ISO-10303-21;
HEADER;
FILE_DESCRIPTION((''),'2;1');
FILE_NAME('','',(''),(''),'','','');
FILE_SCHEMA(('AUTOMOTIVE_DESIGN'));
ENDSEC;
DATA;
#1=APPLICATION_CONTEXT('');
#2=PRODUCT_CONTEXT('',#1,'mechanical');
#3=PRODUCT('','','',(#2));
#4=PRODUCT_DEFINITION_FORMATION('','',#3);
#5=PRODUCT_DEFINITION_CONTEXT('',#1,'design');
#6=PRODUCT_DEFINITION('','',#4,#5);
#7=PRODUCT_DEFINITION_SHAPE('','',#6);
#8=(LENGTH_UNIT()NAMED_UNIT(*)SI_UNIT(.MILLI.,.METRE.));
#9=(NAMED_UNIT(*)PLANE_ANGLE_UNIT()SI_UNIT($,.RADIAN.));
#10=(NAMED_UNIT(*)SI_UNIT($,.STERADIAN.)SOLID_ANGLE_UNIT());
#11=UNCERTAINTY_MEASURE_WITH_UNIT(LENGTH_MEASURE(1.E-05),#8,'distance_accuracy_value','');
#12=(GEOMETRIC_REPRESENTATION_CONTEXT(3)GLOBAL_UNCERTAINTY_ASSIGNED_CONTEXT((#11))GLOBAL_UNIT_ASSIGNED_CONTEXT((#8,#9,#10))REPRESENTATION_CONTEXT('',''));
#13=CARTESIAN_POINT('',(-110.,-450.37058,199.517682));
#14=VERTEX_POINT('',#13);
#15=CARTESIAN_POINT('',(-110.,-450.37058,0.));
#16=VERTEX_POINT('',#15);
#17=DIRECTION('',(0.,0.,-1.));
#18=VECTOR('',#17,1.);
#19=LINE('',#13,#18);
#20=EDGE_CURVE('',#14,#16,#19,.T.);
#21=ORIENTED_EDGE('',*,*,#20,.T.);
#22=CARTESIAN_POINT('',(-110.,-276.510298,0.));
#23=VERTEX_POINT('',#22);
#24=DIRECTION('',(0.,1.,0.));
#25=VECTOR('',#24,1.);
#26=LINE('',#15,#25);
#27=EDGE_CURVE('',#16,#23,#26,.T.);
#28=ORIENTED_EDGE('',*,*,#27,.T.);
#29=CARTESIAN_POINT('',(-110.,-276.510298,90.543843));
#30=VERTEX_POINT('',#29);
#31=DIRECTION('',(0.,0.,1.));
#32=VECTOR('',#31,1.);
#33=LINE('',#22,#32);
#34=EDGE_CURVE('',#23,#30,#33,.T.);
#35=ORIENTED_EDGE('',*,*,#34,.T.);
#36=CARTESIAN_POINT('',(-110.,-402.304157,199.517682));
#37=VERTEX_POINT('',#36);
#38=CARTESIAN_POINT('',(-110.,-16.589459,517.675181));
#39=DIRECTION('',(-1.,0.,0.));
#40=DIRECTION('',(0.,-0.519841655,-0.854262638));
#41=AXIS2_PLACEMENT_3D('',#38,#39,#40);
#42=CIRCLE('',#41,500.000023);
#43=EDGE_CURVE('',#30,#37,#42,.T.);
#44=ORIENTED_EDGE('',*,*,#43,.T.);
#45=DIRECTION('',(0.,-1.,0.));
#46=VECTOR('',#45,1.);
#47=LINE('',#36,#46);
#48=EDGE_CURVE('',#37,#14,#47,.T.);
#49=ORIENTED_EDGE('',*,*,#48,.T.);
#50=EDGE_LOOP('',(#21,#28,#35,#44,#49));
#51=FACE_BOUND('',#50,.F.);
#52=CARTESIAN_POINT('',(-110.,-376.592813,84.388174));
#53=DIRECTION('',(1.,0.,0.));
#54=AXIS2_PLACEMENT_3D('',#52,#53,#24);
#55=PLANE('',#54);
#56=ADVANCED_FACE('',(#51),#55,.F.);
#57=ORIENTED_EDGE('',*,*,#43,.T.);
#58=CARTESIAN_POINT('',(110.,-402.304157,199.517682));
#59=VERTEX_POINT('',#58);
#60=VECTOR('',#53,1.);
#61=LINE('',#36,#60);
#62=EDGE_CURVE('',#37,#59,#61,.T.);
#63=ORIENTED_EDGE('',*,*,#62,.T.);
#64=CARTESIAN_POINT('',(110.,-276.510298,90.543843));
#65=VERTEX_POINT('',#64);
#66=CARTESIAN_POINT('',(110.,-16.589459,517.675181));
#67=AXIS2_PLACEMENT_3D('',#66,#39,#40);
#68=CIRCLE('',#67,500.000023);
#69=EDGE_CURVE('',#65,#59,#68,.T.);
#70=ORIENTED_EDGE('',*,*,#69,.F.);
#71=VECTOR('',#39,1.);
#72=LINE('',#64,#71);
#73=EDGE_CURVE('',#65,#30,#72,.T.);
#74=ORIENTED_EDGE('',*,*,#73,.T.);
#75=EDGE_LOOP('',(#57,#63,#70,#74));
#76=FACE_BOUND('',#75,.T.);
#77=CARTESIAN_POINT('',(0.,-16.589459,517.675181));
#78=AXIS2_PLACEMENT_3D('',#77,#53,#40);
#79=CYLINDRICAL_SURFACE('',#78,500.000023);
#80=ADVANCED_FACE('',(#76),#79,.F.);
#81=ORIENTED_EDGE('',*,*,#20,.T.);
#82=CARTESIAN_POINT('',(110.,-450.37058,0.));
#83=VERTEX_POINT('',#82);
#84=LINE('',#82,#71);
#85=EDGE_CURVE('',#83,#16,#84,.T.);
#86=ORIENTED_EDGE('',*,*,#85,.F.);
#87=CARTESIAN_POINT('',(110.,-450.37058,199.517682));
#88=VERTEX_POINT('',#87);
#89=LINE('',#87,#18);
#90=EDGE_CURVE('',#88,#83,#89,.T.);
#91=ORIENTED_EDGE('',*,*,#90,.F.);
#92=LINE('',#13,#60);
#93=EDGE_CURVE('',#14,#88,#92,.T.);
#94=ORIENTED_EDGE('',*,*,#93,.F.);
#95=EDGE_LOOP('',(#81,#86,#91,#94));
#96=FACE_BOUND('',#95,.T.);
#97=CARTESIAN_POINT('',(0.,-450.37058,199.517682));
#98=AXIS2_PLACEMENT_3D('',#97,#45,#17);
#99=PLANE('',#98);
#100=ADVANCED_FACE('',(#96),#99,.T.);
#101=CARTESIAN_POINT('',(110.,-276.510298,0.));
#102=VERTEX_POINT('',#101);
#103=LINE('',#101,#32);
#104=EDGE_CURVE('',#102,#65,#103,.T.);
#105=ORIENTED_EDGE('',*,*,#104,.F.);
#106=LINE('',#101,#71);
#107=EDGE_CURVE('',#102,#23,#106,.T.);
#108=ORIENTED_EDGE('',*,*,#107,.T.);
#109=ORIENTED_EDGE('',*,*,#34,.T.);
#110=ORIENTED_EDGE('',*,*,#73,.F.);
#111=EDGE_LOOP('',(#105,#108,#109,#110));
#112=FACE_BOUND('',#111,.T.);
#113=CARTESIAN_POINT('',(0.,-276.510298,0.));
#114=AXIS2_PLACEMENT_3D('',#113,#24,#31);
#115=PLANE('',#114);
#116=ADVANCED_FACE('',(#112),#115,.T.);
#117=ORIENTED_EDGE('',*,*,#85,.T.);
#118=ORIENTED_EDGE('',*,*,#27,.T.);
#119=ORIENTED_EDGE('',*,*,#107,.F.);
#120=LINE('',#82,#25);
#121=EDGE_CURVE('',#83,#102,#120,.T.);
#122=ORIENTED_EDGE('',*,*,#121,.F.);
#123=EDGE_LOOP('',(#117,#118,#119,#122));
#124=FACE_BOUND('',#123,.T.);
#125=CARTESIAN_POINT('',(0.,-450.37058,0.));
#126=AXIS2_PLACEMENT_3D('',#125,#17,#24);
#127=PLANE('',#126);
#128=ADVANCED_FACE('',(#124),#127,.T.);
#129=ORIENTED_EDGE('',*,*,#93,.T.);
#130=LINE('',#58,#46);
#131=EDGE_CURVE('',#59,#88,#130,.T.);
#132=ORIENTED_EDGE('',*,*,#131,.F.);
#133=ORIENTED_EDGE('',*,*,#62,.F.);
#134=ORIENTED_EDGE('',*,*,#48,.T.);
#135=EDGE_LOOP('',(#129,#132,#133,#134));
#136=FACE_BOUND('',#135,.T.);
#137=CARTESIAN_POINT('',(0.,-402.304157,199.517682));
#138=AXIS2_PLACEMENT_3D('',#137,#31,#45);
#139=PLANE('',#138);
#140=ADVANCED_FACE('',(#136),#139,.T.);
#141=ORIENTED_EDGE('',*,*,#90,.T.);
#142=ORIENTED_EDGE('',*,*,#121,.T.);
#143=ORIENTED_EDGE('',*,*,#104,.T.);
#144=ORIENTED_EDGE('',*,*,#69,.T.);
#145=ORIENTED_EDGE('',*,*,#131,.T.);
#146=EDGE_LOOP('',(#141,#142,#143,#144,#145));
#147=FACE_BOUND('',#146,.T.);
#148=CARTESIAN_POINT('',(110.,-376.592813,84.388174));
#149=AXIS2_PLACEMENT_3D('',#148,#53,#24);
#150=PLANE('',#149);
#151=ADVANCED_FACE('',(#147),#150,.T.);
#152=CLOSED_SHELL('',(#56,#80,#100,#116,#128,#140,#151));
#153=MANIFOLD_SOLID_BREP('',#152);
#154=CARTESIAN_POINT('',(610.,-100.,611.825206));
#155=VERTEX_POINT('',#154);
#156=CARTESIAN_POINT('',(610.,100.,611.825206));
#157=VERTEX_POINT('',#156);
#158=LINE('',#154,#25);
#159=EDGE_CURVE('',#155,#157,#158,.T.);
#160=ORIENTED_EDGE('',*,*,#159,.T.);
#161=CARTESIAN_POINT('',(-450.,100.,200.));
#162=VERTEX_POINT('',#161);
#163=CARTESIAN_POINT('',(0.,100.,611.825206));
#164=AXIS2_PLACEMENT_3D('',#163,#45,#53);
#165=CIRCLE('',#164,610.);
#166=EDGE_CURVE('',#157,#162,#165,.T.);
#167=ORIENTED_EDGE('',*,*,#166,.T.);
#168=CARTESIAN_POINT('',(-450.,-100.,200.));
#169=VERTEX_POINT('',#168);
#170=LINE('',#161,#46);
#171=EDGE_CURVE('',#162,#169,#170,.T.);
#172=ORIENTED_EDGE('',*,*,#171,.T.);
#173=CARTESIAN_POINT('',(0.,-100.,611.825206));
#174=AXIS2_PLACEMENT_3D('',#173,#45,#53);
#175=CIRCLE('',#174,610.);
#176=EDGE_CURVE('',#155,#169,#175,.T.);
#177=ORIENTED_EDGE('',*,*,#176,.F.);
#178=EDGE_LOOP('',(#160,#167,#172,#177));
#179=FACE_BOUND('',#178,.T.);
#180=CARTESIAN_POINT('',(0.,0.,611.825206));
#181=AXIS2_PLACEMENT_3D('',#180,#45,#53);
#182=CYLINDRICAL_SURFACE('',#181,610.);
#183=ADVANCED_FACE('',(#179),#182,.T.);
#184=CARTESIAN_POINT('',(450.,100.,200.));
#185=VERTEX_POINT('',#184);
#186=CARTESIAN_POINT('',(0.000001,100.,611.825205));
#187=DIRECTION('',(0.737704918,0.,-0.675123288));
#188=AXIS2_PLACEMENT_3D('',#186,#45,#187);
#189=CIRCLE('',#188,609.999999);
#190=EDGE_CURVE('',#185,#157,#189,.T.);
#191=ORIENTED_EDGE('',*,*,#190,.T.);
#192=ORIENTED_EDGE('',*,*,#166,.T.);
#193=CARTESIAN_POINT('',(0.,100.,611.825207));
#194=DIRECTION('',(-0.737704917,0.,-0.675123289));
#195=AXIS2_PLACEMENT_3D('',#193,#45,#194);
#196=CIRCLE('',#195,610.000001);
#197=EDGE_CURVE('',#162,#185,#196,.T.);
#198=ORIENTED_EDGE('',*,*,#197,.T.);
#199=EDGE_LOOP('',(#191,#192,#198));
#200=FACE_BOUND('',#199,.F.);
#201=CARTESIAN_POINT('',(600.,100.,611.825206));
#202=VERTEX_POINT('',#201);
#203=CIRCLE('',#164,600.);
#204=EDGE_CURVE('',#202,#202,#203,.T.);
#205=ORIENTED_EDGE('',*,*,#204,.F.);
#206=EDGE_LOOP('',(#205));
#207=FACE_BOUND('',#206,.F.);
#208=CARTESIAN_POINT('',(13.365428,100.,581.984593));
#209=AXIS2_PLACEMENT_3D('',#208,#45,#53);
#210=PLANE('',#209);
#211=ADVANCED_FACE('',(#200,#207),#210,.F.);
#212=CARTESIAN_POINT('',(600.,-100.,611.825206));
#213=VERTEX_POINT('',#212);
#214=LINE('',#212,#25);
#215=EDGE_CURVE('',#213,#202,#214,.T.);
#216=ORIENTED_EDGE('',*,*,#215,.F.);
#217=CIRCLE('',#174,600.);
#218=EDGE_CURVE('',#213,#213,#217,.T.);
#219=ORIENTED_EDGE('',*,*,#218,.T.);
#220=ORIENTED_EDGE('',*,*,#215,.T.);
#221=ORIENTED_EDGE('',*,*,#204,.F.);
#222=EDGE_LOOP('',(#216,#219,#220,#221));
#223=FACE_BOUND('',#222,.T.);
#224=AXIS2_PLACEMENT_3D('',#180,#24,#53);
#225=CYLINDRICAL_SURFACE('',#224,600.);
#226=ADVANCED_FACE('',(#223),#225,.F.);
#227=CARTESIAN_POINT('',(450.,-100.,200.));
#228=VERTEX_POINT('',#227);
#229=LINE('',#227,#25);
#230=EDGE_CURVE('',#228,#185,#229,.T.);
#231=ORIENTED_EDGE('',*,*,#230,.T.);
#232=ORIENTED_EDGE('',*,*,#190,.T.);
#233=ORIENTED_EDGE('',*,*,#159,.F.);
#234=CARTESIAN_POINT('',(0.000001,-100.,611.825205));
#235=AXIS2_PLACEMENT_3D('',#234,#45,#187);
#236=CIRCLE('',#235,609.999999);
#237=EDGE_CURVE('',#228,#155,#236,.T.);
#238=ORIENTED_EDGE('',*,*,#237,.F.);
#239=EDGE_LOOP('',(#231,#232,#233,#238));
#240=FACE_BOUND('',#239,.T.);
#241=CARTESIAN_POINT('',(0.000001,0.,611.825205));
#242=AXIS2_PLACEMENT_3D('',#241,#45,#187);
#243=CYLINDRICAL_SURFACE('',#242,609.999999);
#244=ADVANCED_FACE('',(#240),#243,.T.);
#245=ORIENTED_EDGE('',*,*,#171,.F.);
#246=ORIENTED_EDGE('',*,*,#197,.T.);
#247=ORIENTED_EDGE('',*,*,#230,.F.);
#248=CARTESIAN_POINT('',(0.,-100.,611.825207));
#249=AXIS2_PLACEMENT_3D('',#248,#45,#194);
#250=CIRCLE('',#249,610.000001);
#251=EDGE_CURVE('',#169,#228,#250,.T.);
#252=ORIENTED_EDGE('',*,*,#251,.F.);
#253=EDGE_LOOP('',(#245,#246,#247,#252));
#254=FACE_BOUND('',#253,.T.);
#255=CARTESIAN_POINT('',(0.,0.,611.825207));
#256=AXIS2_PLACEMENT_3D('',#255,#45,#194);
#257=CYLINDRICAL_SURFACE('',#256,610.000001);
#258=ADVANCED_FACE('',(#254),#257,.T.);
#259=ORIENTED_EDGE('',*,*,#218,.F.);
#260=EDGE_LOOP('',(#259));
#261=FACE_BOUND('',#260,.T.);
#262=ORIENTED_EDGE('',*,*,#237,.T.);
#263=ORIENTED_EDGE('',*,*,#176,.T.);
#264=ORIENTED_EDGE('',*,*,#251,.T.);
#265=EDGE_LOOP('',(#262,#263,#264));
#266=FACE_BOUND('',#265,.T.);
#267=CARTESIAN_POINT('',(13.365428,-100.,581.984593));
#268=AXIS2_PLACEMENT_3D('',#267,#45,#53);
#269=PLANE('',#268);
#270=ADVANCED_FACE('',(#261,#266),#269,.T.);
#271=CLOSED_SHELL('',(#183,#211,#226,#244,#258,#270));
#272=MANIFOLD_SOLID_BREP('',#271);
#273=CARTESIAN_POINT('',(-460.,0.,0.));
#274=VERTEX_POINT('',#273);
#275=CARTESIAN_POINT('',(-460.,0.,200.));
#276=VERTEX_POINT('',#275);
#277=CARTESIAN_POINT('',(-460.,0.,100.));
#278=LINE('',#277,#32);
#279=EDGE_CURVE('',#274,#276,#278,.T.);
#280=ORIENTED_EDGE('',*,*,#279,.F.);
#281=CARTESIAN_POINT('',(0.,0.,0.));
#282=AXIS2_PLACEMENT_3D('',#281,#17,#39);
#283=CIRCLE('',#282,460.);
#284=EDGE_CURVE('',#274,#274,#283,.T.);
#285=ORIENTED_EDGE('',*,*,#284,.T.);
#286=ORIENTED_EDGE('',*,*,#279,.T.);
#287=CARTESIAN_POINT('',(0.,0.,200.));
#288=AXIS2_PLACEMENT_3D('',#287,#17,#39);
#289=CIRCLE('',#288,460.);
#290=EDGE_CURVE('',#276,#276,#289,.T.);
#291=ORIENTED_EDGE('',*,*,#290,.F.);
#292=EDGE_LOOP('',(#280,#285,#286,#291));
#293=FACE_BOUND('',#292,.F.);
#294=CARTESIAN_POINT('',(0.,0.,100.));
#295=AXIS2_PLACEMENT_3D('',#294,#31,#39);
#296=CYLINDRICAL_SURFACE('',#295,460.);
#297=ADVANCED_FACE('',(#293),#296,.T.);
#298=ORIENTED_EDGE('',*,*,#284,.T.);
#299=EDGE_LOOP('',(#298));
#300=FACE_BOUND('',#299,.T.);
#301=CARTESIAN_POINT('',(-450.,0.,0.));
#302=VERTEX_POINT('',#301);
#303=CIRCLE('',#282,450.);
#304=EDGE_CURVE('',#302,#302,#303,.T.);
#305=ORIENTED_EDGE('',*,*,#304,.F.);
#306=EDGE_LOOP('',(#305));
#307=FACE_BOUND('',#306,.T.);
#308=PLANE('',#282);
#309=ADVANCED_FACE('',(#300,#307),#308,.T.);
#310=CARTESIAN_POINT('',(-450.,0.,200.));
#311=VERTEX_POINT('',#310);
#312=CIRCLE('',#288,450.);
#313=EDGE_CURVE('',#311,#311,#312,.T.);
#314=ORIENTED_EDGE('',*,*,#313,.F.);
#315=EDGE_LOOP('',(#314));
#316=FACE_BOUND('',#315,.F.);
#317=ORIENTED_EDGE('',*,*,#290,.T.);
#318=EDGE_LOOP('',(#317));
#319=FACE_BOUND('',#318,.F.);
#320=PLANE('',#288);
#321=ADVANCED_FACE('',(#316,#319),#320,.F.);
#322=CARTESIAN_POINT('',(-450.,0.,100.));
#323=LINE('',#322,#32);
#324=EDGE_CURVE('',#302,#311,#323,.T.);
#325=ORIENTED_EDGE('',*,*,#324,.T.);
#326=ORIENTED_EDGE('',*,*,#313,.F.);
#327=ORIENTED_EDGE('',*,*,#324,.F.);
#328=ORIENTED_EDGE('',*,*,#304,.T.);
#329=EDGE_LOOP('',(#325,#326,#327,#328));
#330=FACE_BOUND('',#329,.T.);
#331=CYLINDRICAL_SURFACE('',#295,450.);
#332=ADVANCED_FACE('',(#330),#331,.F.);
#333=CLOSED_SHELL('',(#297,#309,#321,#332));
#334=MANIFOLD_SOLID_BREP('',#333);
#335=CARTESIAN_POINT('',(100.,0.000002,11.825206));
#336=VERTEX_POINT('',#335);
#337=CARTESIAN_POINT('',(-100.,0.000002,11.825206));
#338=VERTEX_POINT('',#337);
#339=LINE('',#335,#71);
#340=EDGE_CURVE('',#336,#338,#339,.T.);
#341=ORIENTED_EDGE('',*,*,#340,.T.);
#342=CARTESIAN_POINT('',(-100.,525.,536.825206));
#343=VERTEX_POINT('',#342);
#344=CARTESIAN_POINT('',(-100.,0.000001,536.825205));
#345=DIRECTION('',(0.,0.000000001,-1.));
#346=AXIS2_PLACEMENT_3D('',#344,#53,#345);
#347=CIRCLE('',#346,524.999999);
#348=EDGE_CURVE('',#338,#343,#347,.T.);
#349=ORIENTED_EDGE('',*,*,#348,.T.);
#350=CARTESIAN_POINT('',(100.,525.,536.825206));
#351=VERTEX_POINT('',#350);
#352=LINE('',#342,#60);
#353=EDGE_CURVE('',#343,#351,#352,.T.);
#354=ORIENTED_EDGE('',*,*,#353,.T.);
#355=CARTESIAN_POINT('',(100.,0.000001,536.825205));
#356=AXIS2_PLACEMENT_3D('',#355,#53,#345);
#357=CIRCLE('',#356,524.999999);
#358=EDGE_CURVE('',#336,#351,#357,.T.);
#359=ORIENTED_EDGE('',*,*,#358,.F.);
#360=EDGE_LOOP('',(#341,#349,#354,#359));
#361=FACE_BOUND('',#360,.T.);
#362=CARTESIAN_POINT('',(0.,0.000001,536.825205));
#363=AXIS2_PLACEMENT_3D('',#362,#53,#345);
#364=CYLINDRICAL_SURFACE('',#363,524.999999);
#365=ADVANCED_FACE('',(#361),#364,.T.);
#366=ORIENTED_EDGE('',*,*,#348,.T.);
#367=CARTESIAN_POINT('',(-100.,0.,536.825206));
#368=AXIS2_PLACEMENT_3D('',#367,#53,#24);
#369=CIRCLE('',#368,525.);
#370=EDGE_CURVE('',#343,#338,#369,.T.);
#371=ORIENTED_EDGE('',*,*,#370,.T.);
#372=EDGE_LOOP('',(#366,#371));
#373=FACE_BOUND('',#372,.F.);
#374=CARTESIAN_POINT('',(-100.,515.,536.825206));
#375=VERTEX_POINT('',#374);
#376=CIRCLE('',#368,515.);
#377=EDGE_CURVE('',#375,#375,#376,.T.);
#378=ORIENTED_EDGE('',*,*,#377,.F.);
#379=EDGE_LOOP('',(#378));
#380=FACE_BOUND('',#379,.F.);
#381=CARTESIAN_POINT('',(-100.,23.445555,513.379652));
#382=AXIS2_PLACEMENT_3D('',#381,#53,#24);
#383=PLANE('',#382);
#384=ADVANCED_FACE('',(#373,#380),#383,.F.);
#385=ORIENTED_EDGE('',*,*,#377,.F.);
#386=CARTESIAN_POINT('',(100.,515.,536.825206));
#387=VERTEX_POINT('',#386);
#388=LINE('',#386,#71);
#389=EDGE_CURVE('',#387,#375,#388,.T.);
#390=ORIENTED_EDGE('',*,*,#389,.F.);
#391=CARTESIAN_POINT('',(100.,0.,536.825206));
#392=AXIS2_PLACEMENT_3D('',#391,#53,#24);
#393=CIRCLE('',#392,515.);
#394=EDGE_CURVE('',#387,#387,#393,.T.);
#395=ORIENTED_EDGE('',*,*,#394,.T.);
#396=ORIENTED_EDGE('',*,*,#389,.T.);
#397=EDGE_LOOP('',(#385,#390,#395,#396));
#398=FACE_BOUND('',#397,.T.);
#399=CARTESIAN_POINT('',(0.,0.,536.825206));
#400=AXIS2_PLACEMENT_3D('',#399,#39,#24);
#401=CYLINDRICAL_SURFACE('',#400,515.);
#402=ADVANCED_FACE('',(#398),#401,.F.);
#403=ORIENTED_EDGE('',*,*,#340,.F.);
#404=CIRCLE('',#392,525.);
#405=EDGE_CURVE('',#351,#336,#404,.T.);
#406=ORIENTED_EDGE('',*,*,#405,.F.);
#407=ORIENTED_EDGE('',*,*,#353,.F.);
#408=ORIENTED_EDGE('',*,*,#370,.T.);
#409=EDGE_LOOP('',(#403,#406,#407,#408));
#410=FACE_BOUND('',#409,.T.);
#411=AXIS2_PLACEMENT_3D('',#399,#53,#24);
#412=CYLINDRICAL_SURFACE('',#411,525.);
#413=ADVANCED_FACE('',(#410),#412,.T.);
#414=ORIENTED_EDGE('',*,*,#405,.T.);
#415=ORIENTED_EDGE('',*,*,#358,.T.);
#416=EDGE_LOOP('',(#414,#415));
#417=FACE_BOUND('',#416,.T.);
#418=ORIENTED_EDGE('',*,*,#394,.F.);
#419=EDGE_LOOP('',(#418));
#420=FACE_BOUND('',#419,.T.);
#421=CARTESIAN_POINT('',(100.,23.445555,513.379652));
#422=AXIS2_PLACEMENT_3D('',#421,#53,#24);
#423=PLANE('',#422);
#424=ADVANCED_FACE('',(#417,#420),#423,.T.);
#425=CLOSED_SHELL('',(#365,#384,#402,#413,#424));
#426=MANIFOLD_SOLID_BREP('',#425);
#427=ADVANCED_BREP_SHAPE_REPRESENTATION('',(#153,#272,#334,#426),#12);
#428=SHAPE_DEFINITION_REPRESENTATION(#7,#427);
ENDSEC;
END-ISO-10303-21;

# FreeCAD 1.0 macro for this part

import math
import FreeCAD as App
import Part
import Sketcher

V = App.Vector


def add_polygon(sketch, points):
    """Adds a closed chain of lines whose ends are joined by coincident constraints."""
    first, n = sketch.GeometryCount, len(points)
    for a, b in zip(points, points[1:] + points[:1]):
        sketch.addGeometry(Part.LineSegment(App.Vector(*a, 0), App.Vector(*b, 0)), False)
    for i in range(n):
        sketch.addConstraint(Sketcher.Constraint("Coincident", first + i, 2, first + (i + 1) % n, 1))

doc = App.newDocument("Part")
body = doc.addObject("PartDesign::Body", "Body")

# Sketch on XZ plane
sketch1 = doc.addObject("Sketcher::SketchObject", "Sketch")
body.addObject(sketch1)
sketch1.AttachmentSupport = (doc.XZ_Plane, [""])
sketch1.MapMode = "FlatFace"
sketch1.addGeometry(Part.ArcOfCircle(Part.Circle(V(0, 611.825206, 0), V(0, 0, 1), 610), math.radians(0), math.radians(222.463725)), False)
sketch1.addGeometry(Part.ArcOfCircle(Part.Circle(V(0, 611.825207, 0), V(0, 0, 1), 610.000001), math.radians(-137.536275), math.radians(-42.463725)), False)
sketch1.addGeometry(Part.ArcOfCircle(Part.Circle(V(0.000001, 611.825205, 0), V(0, 0, 1), 609.999999), math.radians(-42.463725), math.radians(0)), False)
sketch1.addGeometry(Part.Circle(V(0, 611.825206, 0), V(0, 0, 1), 600), False)
sketch1.addConstraint(Sketcher.Constraint("Coincident", 0, 2, 1, 1))
sketch1.addConstraint(Sketcher.Constraint("Coincident", 1, 2, 2, 1))
sketch1.addConstraint(Sketcher.Constraint("Coincident", 2, 2, 0, 1))
sketch1.addConstraint(Sketcher.Constraint("Coincident", 1, 3, 0, 3))
sketch1.addConstraint(Sketcher.Constraint("Coincident", 3, 3, 0, 3))
sketch1.addConstraint(Sketcher.Constraint("Equal", 1, 2))
sketch1.addConstraint(Sketcher.Constraint("PointOnObject", 0, 3, -2))
sketch1.addConstraint(Sketcher.Constraint("Horizontal", 0, 2, 1, 2))
sketch1.addConstraint(Sketcher.Constraint("Horizontal", 3, 3, 2, 2))
sketch1.addConstraint(Sketcher.Constraint("Diameter", 3, 1200.0))
sketch1.addConstraint(Sketcher.Constraint("Radius", 0, 610.0))
sketch1.addConstraint(Sketcher.Constraint("DistanceX", 0, 2, -1, 1, 450.0))
sketch1.addConstraint(Sketcher.Constraint("DistanceY", -1, 1, 0, 3, 611.825206))
pad1 = doc.addObject("PartDesign::Pad", "Pad")
body.addObject(pad1)
pad1.Profile = sketch1
pad1.Length = 200
pad1.Midplane = True
body2 = doc.addObject("PartDesign::Body", "Body001")

# Sketch on XZ plane
sketch2 = doc.addObject("Sketcher::SketchObject", "Sketch001")
body2.addObject(sketch2)
sketch2.AttachmentSupport = (doc.getObject("XZ_Plane001"), [""])
sketch2.MapMode = "FlatFace"
add_polygon(sketch2, [(-460, 200), (-460, 0), (-450, 0), (-450, 200)])  # lines 0-3
sketch2.addConstraint(Sketcher.Constraint("Vertical", 0))
sketch2.addConstraint(Sketcher.Constraint("Horizontal", 1))
sketch2.addConstraint(Sketcher.Constraint("Vertical", 2))
sketch2.addConstraint(Sketcher.Constraint("Horizontal", 3))
sketch2.addConstraint(Sketcher.Constraint("PointOnObject", 0, 2, -1))
sketch2.addConstraint(Sketcher.Constraint("DistanceX", 1, 1, 1, 2, 10.0))
sketch2.addConstraint(Sketcher.Constraint("DistanceY", 0, 2, 0, 1, 200.0))
sketch2.addConstraint(Sketcher.Constraint("DistanceX", 0, 2, -1, 1, 460.0))
revolution = doc.addObject("PartDesign::Revolution", "Revolution")
body2.addObject(revolution)
revolution.Profile = sketch2
revolution.ReferenceAxis = (sketch2, ["V_Axis"])
revolution.Angle = 360
body3 = doc.addObject("PartDesign::Body", "Body002")

# Sketch on YZ plane
sketch3 = doc.addObject("Sketcher::SketchObject", "Sketch002")
body3.addObject(sketch3)
sketch3.AttachmentSupport = (doc.getObject("YZ_Plane002"), [""])
sketch3.MapMode = "FlatFace"
sketch3.addGeometry(Part.ArcOfCircle(Part.Circle(V(0.000001, 536.825205, 0), V(0, 0, 1), 524.999999), math.radians(-90), math.radians(0)), False)
sketch3.addGeometry(Part.ArcOfCircle(Part.Circle(V(0, 536.825206, 0), V(0, 0, 1), 525), math.radians(0), math.radians(270)), False)
sketch3.addGeometry(Part.Circle(V(0, 536.825206, 0), V(0, 0, 1), 515), False)
sketch3.addConstraint(Sketcher.Constraint("Coincident", 0, 1, 1, 2))
sketch3.addConstraint(Sketcher.Constraint("Coincident", 1, 1, 0, 2))
sketch3.addConstraint(Sketcher.Constraint("Coincident", 2, 3, 0, 3))
sketch3.addConstraint(Sketcher.Constraint("Equal", 0, 1))
sketch3.addConstraint(Sketcher.Constraint("PointOnObject", 0, 3, -2))
sketch3.addConstraint(Sketcher.Constraint("Horizontal", 2, 3, 1, 1))
sketch3.addConstraint(Sketcher.Constraint("Vertical", 1, 3, 0, 1))
sketch3.addConstraint(Sketcher.Constraint("Diameter", 2, 1030.0))
sketch3.addConstraint(Sketcher.Constraint("Radius", 0, 524.999999))
sketch3.addConstraint(Sketcher.Constraint("DistanceY", -1, 1, 0, 3, 536.825205))
pad2 = doc.addObject("PartDesign::Pad", "Pad001")
body3.addObject(pad2)
pad2.Profile = sketch3
pad2.Length = 200
pad2.Midplane = True
body4 = doc.addObject("PartDesign::Body", "Body003")

# Sketch on YZ plane
sketch4 = doc.addObject("Sketcher::SketchObject", "Sketch003")
body4.addObject(sketch4)
sketch4.AttachmentSupport = (doc.getObject("YZ_Plane003"), [""])
sketch4.MapMode = "FlatFace"
sketch4.addGeometry(Part.ArcOfCircle(Part.Circle(V(-16.589459, 517.675181, 0), V(0, 0, 1), 500.000023), math.radians(-140.482418), math.radians(-121.321631)), False)
sketch4.addGeometry(Part.LineSegment(V(-402.304157, 199.517682, 0), V(-450.37058, 199.517682, 0)), False)
sketch4.addGeometry(Part.LineSegment(V(-450.37058, 199.517682, 0), V(-450.37058, 0, 0)), False)
sketch4.addGeometry(Part.LineSegment(V(-450.37058, 0, 0), V(-276.510298, 0, 0)), False)
sketch4.addGeometry(Part.LineSegment(V(-276.510298, 0, 0), V(-276.510298, 90.543843, 0)), False)
sketch4.addConstraint(Sketcher.Constraint("Coincident", 0, 1, 1, 1))
sketch4.addConstraint(Sketcher.Constraint("Coincident", 1, 2, 2, 1))
sketch4.addConstraint(Sketcher.Constraint("Coincident", 2, 2, 3, 1))
sketch4.addConstraint(Sketcher.Constraint("Coincident", 3, 2, 4, 1))
sketch4.addConstraint(Sketcher.Constraint("Coincident", 4, 2, 0, 2))
sketch4.addConstraint(Sketcher.Constraint("Horizontal", 1))
sketch4.addConstraint(Sketcher.Constraint("Vertical", 2))
sketch4.addConstraint(Sketcher.Constraint("Horizontal", 3))
sketch4.addConstraint(Sketcher.Constraint("Vertical", 4))
sketch4.addConstraint(Sketcher.Constraint("PointOnObject", 2, 2, -1))
sketch4.addConstraint(Sketcher.Constraint("Radius", 0, 500.000023))
sketch4.addConstraint(Sketcher.Constraint("DistanceY", 2, 2, 2, 1, 199.517682))
sketch4.addConstraint(Sketcher.Constraint("DistanceX", 3, 2, -1, 1, 276.510298))
sketch4.addConstraint(Sketcher.Constraint("DistanceY", 1, 2, 0, 3, 318.157499))
sketch4.addConstraint(Sketcher.Constraint("DistanceX", 1, 2, 1, 1, 48.066423))
sketch4.addConstraint(Sketcher.Constraint("DistanceX", 3, 1, 3, 2, 173.860282))
pad3 = doc.addObject("PartDesign::Pad", "Pad002")
body4.addObject(pad3)
pad3.Profile = sketch4
pad3.Length = 220
pad3.Midplane = True

doc.recompute()
